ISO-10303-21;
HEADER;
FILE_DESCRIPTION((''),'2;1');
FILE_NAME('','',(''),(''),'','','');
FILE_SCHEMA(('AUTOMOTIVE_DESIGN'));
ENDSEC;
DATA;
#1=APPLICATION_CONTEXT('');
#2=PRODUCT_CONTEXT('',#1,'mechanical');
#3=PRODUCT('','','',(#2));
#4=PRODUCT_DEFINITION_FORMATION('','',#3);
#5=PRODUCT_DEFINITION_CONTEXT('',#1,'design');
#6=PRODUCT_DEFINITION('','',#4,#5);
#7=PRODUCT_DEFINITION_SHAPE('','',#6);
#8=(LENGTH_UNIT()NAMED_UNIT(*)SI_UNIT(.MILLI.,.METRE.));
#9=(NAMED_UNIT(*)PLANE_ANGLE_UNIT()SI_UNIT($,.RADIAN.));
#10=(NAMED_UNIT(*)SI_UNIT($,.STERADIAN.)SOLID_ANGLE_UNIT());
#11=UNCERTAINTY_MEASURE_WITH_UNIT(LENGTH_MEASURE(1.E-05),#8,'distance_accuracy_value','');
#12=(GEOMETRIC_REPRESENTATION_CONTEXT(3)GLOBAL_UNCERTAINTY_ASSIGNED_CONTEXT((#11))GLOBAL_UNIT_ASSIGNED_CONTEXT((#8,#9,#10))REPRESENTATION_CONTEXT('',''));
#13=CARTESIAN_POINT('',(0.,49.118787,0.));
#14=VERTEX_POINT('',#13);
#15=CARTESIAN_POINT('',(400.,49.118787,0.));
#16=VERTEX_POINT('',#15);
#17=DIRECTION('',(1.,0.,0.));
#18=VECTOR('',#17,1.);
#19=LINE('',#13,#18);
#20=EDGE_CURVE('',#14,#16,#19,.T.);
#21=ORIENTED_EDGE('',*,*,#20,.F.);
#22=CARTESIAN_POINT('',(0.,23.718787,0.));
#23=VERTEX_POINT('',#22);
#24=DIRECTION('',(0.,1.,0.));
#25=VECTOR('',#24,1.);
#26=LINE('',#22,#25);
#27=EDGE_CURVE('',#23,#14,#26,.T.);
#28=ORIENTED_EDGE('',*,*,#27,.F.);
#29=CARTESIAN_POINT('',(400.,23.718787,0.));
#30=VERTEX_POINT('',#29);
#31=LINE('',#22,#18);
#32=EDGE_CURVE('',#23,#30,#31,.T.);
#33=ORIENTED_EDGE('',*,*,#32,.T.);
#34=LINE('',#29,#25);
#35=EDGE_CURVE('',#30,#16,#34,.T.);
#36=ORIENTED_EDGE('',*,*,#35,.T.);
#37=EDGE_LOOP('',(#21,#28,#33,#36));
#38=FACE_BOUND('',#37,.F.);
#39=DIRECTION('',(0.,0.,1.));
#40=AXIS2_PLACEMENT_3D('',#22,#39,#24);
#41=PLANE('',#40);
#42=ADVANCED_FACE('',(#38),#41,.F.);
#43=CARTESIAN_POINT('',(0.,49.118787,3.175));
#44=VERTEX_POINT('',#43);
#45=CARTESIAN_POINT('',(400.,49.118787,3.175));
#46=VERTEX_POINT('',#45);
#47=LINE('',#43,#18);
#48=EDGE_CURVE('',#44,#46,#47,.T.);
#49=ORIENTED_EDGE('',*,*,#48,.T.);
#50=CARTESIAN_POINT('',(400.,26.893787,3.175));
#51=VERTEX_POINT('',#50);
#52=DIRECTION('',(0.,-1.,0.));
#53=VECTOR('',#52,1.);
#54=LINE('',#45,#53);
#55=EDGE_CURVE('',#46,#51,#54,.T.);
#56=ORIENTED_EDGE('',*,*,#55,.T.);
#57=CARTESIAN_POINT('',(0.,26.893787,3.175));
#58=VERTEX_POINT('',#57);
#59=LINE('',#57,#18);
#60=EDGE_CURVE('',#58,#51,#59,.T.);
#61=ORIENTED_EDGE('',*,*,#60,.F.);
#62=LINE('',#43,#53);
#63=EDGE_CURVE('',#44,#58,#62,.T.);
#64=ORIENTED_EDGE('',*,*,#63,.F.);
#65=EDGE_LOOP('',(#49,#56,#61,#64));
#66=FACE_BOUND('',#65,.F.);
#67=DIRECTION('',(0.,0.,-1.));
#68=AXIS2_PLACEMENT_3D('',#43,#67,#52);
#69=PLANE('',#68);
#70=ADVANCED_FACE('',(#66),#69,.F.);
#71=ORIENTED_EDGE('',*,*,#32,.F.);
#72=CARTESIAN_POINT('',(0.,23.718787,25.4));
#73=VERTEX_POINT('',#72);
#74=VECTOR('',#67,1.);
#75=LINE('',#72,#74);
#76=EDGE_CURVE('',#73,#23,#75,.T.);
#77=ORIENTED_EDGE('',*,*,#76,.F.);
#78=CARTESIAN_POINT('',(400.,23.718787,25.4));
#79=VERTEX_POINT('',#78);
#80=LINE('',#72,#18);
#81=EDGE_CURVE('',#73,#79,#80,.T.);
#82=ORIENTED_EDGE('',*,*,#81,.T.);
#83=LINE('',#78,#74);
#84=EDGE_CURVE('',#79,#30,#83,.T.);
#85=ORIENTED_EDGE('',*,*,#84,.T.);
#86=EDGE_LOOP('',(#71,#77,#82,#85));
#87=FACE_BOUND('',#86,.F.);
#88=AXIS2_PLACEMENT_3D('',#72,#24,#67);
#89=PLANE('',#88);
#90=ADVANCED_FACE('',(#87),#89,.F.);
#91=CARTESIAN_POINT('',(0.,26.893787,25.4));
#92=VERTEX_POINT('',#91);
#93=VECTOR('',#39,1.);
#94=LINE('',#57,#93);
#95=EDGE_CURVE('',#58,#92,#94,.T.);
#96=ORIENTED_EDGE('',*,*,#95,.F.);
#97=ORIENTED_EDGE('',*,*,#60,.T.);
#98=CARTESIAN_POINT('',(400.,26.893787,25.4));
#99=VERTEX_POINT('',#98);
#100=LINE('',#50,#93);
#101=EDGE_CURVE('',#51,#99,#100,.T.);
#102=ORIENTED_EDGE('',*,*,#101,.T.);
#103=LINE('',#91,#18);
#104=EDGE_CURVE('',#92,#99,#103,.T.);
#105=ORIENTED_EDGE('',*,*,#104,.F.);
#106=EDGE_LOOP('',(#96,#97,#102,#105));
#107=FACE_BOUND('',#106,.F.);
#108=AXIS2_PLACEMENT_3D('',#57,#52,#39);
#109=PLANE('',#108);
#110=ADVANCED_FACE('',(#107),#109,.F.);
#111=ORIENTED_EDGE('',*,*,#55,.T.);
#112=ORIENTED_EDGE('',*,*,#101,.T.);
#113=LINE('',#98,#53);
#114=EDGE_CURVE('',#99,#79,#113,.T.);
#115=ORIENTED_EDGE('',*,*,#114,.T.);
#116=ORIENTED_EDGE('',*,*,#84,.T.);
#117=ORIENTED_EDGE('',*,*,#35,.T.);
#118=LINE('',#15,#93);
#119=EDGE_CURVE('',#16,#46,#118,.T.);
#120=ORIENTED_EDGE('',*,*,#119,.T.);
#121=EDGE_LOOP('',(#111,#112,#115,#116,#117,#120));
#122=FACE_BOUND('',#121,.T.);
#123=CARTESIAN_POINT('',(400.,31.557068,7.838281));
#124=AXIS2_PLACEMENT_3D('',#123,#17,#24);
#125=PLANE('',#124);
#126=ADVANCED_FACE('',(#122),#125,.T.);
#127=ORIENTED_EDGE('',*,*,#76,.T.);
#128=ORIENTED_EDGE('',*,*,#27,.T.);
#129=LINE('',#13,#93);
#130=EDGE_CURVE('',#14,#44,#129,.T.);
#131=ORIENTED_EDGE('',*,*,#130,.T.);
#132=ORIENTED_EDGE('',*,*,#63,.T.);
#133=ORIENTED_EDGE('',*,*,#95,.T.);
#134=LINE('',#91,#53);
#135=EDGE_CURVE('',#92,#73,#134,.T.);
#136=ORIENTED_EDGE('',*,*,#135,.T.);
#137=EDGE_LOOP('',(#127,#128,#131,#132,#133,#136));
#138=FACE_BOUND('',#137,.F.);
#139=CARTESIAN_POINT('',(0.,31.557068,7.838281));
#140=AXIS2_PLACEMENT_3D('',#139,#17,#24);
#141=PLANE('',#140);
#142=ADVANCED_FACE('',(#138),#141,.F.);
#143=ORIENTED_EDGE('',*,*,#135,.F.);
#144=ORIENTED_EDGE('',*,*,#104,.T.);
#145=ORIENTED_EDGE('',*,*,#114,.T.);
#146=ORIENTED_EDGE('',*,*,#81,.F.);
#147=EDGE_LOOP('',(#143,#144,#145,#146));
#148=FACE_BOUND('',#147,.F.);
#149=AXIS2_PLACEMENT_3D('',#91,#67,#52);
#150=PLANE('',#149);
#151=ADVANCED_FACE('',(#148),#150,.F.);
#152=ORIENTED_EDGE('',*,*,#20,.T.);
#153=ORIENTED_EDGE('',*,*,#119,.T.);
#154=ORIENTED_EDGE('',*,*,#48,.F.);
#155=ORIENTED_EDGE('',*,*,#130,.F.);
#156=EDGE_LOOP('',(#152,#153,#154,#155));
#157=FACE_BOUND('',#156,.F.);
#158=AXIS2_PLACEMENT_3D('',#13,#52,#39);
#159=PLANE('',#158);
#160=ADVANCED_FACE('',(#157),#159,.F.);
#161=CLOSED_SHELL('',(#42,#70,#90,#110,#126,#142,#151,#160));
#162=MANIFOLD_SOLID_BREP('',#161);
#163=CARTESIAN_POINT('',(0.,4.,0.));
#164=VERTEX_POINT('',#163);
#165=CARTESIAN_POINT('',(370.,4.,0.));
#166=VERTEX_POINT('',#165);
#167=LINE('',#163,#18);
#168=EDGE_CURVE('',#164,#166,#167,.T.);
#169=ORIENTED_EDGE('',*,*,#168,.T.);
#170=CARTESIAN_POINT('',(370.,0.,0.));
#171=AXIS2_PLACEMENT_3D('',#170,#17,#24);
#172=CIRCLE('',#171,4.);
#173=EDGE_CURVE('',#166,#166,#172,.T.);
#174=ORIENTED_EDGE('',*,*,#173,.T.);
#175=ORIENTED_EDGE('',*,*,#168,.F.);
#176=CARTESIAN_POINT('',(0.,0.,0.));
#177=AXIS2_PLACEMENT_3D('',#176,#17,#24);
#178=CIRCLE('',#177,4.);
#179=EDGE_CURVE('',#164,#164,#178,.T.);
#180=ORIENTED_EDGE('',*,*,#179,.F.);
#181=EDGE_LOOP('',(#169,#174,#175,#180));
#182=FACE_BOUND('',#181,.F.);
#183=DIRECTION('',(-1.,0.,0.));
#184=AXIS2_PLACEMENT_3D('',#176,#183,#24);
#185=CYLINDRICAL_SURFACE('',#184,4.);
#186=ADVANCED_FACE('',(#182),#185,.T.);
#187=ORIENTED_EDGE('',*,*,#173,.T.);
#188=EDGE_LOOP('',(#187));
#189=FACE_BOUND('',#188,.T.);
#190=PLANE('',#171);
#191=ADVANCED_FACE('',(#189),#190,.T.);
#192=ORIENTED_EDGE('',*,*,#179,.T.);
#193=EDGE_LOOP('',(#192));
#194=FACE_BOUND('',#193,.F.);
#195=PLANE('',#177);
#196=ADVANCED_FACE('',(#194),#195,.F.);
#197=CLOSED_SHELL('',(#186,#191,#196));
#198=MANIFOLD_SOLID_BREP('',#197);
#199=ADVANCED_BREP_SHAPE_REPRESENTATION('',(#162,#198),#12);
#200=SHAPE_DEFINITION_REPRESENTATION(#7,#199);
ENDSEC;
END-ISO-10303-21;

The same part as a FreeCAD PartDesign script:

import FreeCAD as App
import Part
import Sketcher

V = App.Vector


def add_polygon(sketch, points):
    """Adds a closed chain of lines whose ends are joined by coincident constraints."""
    first, n = sketch.GeometryCount, len(points)
    for a, b in zip(points, points[1:] + points[:1]):
        sketch.addGeometry(Part.LineSegment(App.Vector(*a, 0), App.Vector(*b, 0)), False)
    for i in range(n):
        sketch.addConstraint(Sketcher.Constraint("Coincident", first + i, 2, first + (i + 1) % n, 1))

doc = App.newDocument("Part")
body = doc.addObject("PartDesign::Body", "Body")

# Sketch on YZ plane
sketch1 = body.newObject("Sketcher::SketchObject", "Sketch")
sketch1.AttachmentSupport = (doc.getObject("YZ_Plane"), [""])
sketch1.MapMode = "FlatFace"
sketch1.addGeometry(Part.Circle(V(0, 0, 0), V(0, 0, 1), 4), False)
sketch1.addConstraint([
    Sketcher.Constraint("Coincident", 0, 3, -1, 1),
    Sketcher.Constraint("Diameter", 0, 8.0),
])
pad1 = body.newObject("PartDesign::Pad", "Pad")
pad1.Profile = sketch1
pad1.Length = 370
body2 = doc.addObject("PartDesign::Body", "Body001")

# Sketch on YZ plane
sketch2 = body2.newObject("Sketcher::SketchObject", "Sketch001")
sketch2.AttachmentSupport = (doc.getObject("YZ_Plane001"), [""])
sketch2.MapMode = "FlatFace"
add_polygon(sketch2, [(23.718787, 25.4), (23.718787, 0), (49.118787, 0), (49.118787, 3.175), (26.893787, 3.175), (26.893787, 25.4)])  # lines 0-5
sketch2.addConstraint([
    Sketcher.Constraint("Vertical", 0),
    Sketcher.Constraint("Horizontal", 1),
    Sketcher.Constraint("Vertical", 2),
    Sketcher.Constraint("Horizontal", 3),
    Sketcher.Constraint("Vertical", 4),
    Sketcher.Constraint("Horizontal", 5),
    Sketcher.Constraint("PointOnObject", 0, 2, -1),
    Sketcher.Constraint("Equal", 1, 0),
    Sketcher.Constraint("Equal", 5, 2),
    Sketcher.Constraint("DistanceX", 1, 1, 1, 2, 25.4),
    Sketcher.Constraint("DistanceX", 3, 2, 3, 1, 22.225),
    Sketcher.Constraint("DistanceX", -1, 1, 0, 2, 23.718787),
])
pad2 = body2.newObject("PartDesign::Pad", "Pad001")
pad2.Profile = sketch2
pad2.Length = 400

doc.recompute()
